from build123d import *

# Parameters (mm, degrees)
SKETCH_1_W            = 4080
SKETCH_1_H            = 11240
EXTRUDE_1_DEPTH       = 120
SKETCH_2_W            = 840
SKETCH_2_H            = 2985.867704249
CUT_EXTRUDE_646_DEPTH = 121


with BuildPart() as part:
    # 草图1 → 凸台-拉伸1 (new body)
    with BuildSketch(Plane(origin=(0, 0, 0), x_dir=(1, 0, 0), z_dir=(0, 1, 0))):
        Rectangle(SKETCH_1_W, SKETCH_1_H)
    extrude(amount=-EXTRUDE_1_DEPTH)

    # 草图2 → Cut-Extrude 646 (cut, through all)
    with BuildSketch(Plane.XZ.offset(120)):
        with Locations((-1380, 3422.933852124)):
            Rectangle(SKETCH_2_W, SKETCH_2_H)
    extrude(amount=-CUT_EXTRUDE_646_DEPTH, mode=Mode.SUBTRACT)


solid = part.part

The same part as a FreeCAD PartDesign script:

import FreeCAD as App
import Part
import Sketcher

V = App.Vector


def add_polygon(sketch, points):
    """Adds a closed chain of lines whose ends are joined by coincident constraints."""
    first, n = sketch.GeometryCount, len(points)
    for a, b in zip(points, points[1:] + points[:1]):
        sketch.addGeometry(Part.LineSegment(App.Vector(*a, 0), App.Vector(*b, 0)), False)
    for i in range(n):
        sketch.addConstraint(Sketcher.Constraint("Coincident", first + i, 2, first + (i + 1) % n, 1))

doc = App.newDocument("Part")
body = doc.addObject("PartDesign::Body", "Body")

sketch1 = doc.addObject("Sketcher::SketchObject", "Sketch")
body.addObject(sketch1)
sketch1.AttachmentSupport = (doc.XZ_Plane, [""])
sketch1.MapMode = "FlatFace"
add_polygon(sketch1, [(-2040, -5620), (-2040, 5620), (2040, 5620), (2040, -5620)])
sketch1.addConstraint([
    Sketcher.Constraint("Vertical", 0),
    Sketcher.Constraint("Horizontal", 1),
    Sketcher.Constraint("Vertical", 2),
    Sketcher.Constraint("Horizontal", 3),
    Sketcher.Constraint("Symmetric", 0, 2, 2, 2, -1, 1),
    Sketcher.Constraint("DistanceX", 1, 1, 1, 2, 4080.0),
    Sketcher.Constraint("DistanceY", 0, 1, 0, 2, 11240.0),
])
pad1 = doc.addObject("PartDesign::Pad", "Pad")
body.addObject(pad1)
pad1.Profile = sketch1
pad1.Length = 120

sketch2 = doc.addObject("Sketcher::SketchObject", "Sketch001")
body.addObject(sketch2)
sketch2.AttachmentSupport = (doc.XZ_Plane, [""])
sketch2.MapMode = "FlatFace"
sketch2.AttachmentOffset = App.Placement(V(0, 0, 120), App.Rotation())
add_polygon(sketch2, [(-1800, 4916), (-1800, 1930), (-960, 1930), (-960, 4916)])
sketch2.addConstraint([
    Sketcher.Constraint("Vertical", 0),
    Sketcher.Constraint("Horizontal", 1),
    Sketcher.Constraint("Vertical", 2),
    Sketcher.Constraint("Horizontal", 3),
    Sketcher.Constraint("DistanceX", 1, 1, 1, 2, 840.0),
    Sketcher.Constraint("DistanceX", 0, 2, -1, 1, 1800.0),
    Sketcher.Constraint("DistanceY", -1, 1, 0, 2, 1930.0),
    Sketcher.Constraint("DistanceY", 0, 2, 0, 1, 2985.867704),
])
pocket1 = doc.addObject("PartDesign::Pocket", "Pocket")
body.addObject(pocket1)
pocket1.Profile = sketch2
pocket1.Type = "ThroughAll"

doc.recompute()
